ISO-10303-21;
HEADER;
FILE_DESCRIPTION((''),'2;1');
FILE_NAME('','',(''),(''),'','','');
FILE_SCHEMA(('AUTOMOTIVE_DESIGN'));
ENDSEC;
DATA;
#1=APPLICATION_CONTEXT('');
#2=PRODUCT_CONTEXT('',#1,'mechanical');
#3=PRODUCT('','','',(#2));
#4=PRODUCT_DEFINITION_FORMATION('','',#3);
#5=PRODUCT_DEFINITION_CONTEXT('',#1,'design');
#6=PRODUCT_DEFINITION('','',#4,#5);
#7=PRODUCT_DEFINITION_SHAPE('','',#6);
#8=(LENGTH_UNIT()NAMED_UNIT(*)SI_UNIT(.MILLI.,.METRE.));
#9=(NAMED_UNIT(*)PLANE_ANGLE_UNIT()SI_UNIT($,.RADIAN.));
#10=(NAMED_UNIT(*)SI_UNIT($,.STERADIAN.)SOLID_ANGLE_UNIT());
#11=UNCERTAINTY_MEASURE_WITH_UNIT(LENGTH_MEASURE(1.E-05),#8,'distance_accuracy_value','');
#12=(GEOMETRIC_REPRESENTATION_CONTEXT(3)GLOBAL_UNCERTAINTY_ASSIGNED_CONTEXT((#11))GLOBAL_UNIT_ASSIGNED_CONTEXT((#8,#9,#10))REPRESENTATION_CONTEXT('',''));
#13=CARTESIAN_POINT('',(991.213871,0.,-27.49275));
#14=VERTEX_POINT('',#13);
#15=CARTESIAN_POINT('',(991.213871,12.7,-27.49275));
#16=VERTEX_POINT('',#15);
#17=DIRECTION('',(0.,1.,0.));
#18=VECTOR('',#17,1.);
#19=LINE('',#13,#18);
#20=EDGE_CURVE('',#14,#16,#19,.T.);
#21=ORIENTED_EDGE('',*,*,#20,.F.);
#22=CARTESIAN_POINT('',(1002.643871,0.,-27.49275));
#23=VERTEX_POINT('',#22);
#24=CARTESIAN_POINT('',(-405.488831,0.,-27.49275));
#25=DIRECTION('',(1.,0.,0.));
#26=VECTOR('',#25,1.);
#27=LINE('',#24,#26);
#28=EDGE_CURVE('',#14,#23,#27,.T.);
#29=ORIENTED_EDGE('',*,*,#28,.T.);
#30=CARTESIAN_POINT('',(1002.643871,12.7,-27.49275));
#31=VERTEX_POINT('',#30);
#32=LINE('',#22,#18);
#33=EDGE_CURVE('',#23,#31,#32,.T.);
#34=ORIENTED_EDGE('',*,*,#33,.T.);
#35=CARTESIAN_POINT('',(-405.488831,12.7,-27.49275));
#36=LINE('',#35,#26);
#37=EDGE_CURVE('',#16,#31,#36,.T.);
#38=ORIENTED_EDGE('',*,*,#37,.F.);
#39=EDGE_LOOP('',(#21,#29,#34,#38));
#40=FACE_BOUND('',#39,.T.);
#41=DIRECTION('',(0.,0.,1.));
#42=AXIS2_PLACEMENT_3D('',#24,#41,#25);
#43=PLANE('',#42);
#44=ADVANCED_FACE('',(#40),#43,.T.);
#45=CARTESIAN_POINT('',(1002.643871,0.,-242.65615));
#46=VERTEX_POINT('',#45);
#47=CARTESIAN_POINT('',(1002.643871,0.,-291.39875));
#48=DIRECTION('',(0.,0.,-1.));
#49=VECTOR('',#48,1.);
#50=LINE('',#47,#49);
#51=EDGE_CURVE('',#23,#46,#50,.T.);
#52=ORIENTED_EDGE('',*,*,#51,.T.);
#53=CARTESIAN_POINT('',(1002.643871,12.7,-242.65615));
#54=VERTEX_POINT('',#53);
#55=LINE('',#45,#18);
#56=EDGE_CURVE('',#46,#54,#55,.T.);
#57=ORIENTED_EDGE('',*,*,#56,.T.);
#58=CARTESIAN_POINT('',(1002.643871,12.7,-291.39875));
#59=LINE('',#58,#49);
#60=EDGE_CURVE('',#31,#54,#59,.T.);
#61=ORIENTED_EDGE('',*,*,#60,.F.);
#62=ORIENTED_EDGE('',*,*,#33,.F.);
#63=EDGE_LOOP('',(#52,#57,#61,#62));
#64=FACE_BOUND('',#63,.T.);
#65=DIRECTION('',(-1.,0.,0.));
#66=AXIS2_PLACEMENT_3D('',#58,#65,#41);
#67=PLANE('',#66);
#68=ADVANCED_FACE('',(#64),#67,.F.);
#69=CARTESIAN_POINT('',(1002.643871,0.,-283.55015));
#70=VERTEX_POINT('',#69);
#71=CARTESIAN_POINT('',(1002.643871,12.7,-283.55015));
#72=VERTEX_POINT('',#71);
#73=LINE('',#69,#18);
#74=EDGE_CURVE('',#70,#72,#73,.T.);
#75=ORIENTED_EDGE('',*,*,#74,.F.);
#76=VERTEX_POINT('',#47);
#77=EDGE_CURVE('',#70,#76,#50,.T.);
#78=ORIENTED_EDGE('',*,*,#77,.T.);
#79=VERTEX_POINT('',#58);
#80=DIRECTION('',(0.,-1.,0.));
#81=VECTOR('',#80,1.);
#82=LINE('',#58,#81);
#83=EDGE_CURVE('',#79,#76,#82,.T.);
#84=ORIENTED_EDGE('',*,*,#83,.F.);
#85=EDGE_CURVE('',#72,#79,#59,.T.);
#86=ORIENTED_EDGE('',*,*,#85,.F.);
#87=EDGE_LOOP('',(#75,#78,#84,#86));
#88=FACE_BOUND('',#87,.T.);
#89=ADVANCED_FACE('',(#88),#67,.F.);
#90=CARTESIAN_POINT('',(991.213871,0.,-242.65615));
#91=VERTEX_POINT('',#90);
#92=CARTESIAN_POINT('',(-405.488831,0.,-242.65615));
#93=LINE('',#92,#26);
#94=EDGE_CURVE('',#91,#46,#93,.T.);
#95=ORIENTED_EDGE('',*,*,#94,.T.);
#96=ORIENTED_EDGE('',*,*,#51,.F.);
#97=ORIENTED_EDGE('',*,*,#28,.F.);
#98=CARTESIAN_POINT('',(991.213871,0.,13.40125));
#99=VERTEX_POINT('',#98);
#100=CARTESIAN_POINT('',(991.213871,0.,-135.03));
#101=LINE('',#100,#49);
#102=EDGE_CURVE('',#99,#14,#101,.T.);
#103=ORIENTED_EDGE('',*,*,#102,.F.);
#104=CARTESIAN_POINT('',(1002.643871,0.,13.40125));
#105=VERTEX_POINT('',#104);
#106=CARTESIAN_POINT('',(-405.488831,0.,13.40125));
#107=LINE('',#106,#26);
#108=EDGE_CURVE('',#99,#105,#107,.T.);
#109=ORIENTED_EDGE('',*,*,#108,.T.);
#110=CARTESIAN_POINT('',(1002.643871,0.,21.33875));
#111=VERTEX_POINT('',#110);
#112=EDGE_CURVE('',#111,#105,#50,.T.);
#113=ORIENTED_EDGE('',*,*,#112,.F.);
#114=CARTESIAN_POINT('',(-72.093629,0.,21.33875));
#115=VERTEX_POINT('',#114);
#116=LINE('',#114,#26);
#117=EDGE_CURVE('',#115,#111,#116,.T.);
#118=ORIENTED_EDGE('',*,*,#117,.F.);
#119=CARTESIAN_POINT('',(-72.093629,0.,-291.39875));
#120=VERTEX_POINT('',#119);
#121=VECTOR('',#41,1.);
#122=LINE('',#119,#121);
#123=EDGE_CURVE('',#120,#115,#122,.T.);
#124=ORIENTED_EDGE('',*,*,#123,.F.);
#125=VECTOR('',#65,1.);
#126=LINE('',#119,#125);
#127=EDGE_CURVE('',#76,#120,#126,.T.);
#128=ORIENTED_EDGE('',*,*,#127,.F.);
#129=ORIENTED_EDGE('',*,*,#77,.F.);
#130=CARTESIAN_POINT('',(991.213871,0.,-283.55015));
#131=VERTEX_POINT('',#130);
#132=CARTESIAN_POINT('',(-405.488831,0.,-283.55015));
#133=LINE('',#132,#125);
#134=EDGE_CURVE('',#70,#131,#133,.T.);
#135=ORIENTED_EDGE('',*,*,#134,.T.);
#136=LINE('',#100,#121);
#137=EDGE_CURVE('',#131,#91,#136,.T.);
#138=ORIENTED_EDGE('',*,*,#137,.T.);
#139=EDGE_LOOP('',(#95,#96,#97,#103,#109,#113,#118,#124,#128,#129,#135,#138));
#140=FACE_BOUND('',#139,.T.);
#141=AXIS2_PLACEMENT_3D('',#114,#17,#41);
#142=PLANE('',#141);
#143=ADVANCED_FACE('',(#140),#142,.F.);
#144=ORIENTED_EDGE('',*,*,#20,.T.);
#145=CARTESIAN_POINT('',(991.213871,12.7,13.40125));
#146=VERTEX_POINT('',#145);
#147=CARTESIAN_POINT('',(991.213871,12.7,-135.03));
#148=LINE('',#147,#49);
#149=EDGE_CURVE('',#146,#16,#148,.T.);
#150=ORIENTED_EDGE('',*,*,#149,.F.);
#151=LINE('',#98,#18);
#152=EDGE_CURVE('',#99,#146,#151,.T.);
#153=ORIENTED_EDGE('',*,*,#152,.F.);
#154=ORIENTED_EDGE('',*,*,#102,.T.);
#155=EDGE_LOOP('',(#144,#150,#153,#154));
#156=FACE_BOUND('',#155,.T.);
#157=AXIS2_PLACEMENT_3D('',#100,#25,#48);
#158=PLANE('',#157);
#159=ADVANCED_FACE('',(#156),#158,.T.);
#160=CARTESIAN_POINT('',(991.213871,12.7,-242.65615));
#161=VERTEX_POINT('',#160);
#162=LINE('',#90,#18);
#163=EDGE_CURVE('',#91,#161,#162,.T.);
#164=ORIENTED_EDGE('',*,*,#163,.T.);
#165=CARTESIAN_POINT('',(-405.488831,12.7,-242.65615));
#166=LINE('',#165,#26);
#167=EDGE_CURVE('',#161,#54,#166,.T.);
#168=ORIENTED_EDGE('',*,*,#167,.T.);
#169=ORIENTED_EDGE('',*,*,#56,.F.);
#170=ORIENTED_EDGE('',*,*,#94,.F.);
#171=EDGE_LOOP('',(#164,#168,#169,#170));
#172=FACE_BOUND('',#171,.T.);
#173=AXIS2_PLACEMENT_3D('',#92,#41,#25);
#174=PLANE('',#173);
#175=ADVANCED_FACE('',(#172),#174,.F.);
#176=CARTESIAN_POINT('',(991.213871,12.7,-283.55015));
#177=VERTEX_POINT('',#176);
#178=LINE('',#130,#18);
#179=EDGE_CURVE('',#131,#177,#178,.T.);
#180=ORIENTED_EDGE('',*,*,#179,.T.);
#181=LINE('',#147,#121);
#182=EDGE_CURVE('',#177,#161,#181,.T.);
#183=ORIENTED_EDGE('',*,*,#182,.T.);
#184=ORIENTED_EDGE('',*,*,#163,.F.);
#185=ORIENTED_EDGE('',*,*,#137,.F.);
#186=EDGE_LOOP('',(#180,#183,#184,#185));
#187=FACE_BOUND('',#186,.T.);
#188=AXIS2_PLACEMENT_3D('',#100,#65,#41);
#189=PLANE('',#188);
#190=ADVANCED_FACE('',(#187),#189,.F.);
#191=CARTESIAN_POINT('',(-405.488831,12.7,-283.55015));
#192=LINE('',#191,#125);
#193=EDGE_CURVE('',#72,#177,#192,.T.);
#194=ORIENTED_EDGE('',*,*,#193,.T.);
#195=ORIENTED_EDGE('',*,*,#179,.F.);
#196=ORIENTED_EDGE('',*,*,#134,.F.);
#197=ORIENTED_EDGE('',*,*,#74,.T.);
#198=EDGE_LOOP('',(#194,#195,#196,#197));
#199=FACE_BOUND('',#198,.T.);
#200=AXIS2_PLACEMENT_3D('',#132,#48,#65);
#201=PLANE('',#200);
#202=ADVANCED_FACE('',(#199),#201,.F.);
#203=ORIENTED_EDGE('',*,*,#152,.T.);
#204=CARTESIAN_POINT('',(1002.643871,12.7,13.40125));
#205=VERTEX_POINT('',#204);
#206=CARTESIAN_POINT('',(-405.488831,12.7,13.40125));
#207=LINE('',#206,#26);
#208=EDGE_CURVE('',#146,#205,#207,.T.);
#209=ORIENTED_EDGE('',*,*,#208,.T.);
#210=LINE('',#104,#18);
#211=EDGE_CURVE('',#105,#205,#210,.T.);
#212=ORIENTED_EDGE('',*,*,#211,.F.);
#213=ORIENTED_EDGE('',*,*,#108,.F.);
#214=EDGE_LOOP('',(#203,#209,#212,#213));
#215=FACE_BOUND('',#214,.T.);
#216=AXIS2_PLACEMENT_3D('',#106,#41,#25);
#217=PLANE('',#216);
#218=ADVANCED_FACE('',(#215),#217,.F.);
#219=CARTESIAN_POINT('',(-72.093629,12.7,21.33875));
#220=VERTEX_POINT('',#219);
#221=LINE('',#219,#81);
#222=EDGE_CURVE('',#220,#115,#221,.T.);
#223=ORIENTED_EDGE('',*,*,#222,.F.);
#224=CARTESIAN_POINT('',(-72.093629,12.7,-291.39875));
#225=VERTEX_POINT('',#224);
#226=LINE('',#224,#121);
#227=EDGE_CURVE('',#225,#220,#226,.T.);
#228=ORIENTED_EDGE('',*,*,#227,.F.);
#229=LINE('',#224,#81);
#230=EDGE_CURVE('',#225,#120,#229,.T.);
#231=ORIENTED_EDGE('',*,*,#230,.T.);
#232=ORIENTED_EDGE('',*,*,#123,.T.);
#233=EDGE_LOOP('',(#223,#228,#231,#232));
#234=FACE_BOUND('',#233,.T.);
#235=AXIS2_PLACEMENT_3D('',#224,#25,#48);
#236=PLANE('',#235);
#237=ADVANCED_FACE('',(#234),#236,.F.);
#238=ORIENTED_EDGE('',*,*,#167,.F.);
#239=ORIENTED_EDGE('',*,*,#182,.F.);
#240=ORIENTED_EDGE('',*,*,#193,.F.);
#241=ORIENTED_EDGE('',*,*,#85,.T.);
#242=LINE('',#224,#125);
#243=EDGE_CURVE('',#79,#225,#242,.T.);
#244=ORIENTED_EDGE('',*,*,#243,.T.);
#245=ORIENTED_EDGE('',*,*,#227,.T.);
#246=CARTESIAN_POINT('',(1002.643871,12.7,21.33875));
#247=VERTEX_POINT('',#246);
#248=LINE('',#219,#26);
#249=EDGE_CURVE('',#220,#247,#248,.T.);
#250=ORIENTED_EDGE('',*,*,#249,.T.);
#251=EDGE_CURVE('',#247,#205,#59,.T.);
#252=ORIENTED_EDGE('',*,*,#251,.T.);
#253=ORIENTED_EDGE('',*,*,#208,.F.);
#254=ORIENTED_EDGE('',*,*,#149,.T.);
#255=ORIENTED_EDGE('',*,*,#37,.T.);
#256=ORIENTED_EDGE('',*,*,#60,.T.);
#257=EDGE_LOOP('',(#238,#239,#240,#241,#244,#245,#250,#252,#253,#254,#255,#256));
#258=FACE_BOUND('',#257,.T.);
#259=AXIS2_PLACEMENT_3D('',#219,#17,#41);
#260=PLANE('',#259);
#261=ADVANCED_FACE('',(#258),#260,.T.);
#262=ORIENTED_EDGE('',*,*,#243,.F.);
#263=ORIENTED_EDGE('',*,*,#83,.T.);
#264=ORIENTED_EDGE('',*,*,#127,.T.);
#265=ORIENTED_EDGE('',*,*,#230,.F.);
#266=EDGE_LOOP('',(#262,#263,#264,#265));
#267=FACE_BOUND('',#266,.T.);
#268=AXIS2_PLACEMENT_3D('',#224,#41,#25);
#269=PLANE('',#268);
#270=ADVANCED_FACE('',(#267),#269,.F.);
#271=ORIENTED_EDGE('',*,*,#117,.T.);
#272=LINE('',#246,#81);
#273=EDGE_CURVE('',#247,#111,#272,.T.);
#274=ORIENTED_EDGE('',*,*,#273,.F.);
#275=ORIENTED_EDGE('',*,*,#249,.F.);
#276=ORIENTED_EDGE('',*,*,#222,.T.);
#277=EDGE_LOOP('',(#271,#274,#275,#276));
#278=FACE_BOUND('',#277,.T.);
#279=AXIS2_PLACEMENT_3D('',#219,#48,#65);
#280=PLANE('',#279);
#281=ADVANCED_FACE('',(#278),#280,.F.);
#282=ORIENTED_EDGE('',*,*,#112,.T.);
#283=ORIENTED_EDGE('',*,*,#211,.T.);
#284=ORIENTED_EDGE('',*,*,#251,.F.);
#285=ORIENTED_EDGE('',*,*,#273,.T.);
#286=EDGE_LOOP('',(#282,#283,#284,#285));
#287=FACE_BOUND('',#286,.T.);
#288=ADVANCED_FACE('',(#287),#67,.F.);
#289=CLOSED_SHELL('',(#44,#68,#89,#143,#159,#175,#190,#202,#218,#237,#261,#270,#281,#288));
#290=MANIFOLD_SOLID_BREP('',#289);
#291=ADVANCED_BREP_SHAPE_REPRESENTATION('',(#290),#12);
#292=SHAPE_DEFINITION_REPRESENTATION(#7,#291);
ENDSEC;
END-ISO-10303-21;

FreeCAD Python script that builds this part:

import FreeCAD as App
import Part
import Sketcher
from FreeCAD import Vector
Q = App.Units.Quantity

doc = App.newDocument("Part")
params = doc.addObject("Spreadsheet::Sheet", "Params")
for row, (alias, value) in enumerate([
    ("sketch1_width", "42.3125 in"),
    ("sketch1_height", "12.3125 in"),
    ("pad1_length", "0.5 in"),
    ("sketch2_width", "0.45 in"),
    ("sketch2_height", "1.61 in"),
], start=1):
    params.set(f"A{row}", alias)
    params.set(f"B{row}", "=" + value)
    params.setAlias(f"B{row}", alias)

body = doc.addObject("PartDesign::Body", "Body")

# Sketch on XZ plane
sketch1 = body.newObject("Sketcher::SketchObject", "Sketch")
sketch1.AttachmentSupport = (doc.getObject("XZ_Plane"), [""])
sketch1.MapMode = "FlatFace"
sketch1.addGeometry(Part.LineSegment(Vector(-72.093629, -291.39875, 0), Vector(-72.093629, 21.33875, 0)), False)
sketch1.addGeometry(Part.LineSegment(Vector(-72.093629, 21.33875, 0), Vector(1002.643871, 21.33875, 0)), False)
sketch1.addGeometry(Part.LineSegment(Vector(1002.643871, 21.33875, 0), Vector(1002.643871, -291.39875, 0)), False)
sketch1.addGeometry(Part.LineSegment(Vector(1002.643871, -291.39875, 0), Vector(-72.093629, -291.39875, 0)), False)
sketch1.addConstraint(Sketcher.Constraint("Coincident", 0, 2, 1, 1))
sketch1.addConstraint(Sketcher.Constraint("Coincident", 1, 2, 2, 1))
sketch1.addConstraint(Sketcher.Constraint("Coincident", 2, 2, 3, 1))
sketch1.addConstraint(Sketcher.Constraint("Coincident", 3, 2, 0, 1))
sketch1.addConstraint(Sketcher.Constraint("Vertical", 0))
sketch1.addConstraint(Sketcher.Constraint("Horizontal", 1))
sketch1.addConstraint(Sketcher.Constraint("Vertical", 2))
sketch1.addConstraint(Sketcher.Constraint("Horizontal", 3))
sketch1.addConstraint(Sketcher.Constraint("DistanceX", 1, 1, 1, 2, Q("42.3125 in")))
sketch1.addConstraint(Sketcher.Constraint("DistanceY", 0, 1, 0, 2, Q("12.3125 in")))
sketch1.addConstraint(Sketcher.Constraint("DistanceX", 0, 2, -1, 1, Q("72.093629 mm")))
sketch1.addConstraint(Sketcher.Constraint("DistanceY", -1, 1, 0, 2, Q("21.33875 mm")))
sketch1.setExpression("Constraints[8]", "Params.sketch1_width")
sketch1.setExpression("Constraints[9]", "Params.sketch1_height")
pad1 = body.newObject("PartDesign::Pad", "Pad")
pad1.Profile = sketch1
pad1.setExpression("Length", "Params.pad1_length")
pad1.Reversed = True

# Sketch on XZ plane
sketch2 = body.newObject("Sketcher::SketchObject", "Sketch001")
sketch2.AttachmentSupport = (doc.getObject("XZ_Plane"), [""])
sketch2.MapMode = "FlatFace"
sketch2.AttachmentOffset = App.Placement(Vector(0, 0, -0.5 * 25.4), App.Rotation())
sketch2.addGeometry(Part.LineSegment(Vector(1002.643871, -283.55015, 0), Vector(991.213871, -283.55015, 0)), False)
sketch2.addGeometry(Part.LineSegment(Vector(991.213871, -283.55015, 0), Vector(991.213871, -242.65615, 0)), False)
sketch2.addGeometry(Part.LineSegment(Vector(991.213871, -242.65615, 0), Vector(1002.643871, -242.65615, 0)), False)
sketch2.addGeometry(Part.LineSegment(Vector(1002.643871, -242.65615, 0), Vector(1002.643871, -283.55015, 0)), False)
sketch2.addGeometry(Part.LineSegment(Vector(991.213871, -27.49275, 0), Vector(991.213871, 13.40125, 0)), False)
sketch2.addGeometry(Part.LineSegment(Vector(991.213871, 13.40125, 0), Vector(1002.643871, 13.40125, 0)), False)
sketch2.addGeometry(Part.LineSegment(Vector(1002.643871, 13.40125, 0), Vector(1002.643871, -27.49275, 0)), False)
sketch2.addGeometry(Part.LineSegment(Vector(1002.643871, -27.49275, 0), Vector(991.213871, -27.49275, 0)), False)
sketch2.addConstraint(Sketcher.Constraint("Coincident", 0, 2, 1, 1))
sketch2.addConstraint(Sketcher.Constraint("Coincident", 1, 2, 2, 1))
sketch2.addConstraint(Sketcher.Constraint("Coincident", 2, 2, 3, 1))
sketch2.addConstraint(Sketcher.Constraint("Coincident", 3, 2, 0, 1))
sketch2.addConstraint(Sketcher.Constraint("Coincident", 4, 2, 5, 1))
sketch2.addConstraint(Sketcher.Constraint("Coincident", 5, 2, 6, 1))
sketch2.addConstraint(Sketcher.Constraint("Coincident", 6, 2, 7, 1))
sketch2.addConstraint(Sketcher.Constraint("Coincident", 7, 2, 4, 1))
sketch2.addConstraint(Sketcher.Constraint("Horizontal", 0))
sketch2.addConstraint(Sketcher.Constraint("Vertical", 1))
sketch2.addConstraint(Sketcher.Constraint("Horizontal", 2))
sketch2.addConstraint(Sketcher.Constraint("Vertical", 3))
sketch2.addConstraint(Sketcher.Constraint("Vertical", 4))
sketch2.addConstraint(Sketcher.Constraint("Horizontal", 5))
sketch2.addConstraint(Sketcher.Constraint("Vertical", 6))
sketch2.addConstraint(Sketcher.Constraint("Horizontal", 7))
sketch2.addConstraint(Sketcher.Constraint("Vertical", 1, 2, 4, 2))
sketch2.addConstraint(Sketcher.Constraint("Vertical", 3, 2, 5, 2))
sketch2.addConstraint(Sketcher.Constraint("Equal", 3, 4))
sketch2.addConstraint(Sketcher.Constraint("DistanceX", 0, 2, 0, 1, Q("0.45 in")))
sketch2.addConstraint(Sketcher.Constraint("DistanceY", 1, 1, 1, 2, Q("1.61 in")))
sketch2.addConstraint(Sketcher.Constraint("DistanceY", 1, 2, 4, 2, Q("10.081 in")))
sketch2.addConstraint(Sketcher.Constraint("DistanceX", -1, 1, 0, 2, Q("991.213871 mm")))
sketch2.addConstraint(Sketcher.Constraint("DistanceY", 0, 2, -1, 1, Q("283.55015 mm")))
sketch2.setExpression("Constraints[19]", "Params.sketch2_width")
sketch2.setExpression("Constraints[20]", "Params.sketch2_height")
pocket1 = body.newObject("PartDesign::Pocket", "Pocket")
pocket1.Profile = sketch2
pocket1.Type = "ThroughAll"
pocket1.Reversed = True

doc.recompute()
